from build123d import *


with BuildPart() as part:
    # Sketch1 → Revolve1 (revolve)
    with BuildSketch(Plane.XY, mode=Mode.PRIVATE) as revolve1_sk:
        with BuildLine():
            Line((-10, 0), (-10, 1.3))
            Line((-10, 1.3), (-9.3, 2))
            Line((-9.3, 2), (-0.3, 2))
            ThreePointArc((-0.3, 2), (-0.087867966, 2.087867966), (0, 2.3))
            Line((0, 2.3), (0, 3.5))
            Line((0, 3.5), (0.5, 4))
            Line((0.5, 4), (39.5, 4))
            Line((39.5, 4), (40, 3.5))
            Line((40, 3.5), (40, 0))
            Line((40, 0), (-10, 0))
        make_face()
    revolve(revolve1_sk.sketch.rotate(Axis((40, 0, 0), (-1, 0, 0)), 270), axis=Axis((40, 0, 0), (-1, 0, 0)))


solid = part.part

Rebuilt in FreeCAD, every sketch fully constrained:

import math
import FreeCAD as App
import Part
import Sketcher
from FreeCAD import Vector

doc = App.newDocument("Part")
body = doc.addObject("PartDesign::Body", "Body")

sketch1 = body.newObject("Sketcher::SketchObject", "Sketch")
sketch1.AttachmentSupport = (doc.getObject("XY_Plane"), [""])
sketch1.MapMode = "FlatFace"
sketch1.addGeometry(Part.LineSegment(Vector(-10, 1.3, 0), Vector(-10, 0, 0)), False)
sketch1.addGeometry(Part.LineSegment(Vector(-10, 0, 0), Vector(40, 0, 0)), False)
sketch1.addGeometry(Part.LineSegment(Vector(40, 0, 0), Vector(40, 3.5, 0)), False)
sketch1.addGeometry(Part.LineSegment(Vector(40, 3.5, 0), Vector(39.5, 4, 0)), False)
sketch1.addGeometry(Part.LineSegment(Vector(39.5, 4, 0), Vector(0.5, 4, 0)), False)
sketch1.addGeometry(Part.LineSegment(Vector(0.5, 4, 0), Vector(0, 3.5, 0)), False)
sketch1.addGeometry(Part.LineSegment(Vector(0, 3.5, 0), Vector(0, 2.3, 0)), False)
sketch1.addGeometry(Part.ArcOfCircle(Part.Circle(Vector(-0.3, 2.3, 0), Vector(0, 0, 1), 0.3), math.radians(-90), math.radians(0)), False)
sketch1.addGeometry(Part.LineSegment(Vector(-0.3, 2, 0), Vector(-9.3, 2, 0)), False)
sketch1.addGeometry(Part.LineSegment(Vector(-9.3, 2, 0), Vector(-10, 1.3, 0)), False)
sketch1.addConstraint(Sketcher.Constraint("Coincident", 0, 2, 1, 1))
sketch1.addConstraint(Sketcher.Constraint("Coincident", 1, 2, 2, 1))
sketch1.addConstraint(Sketcher.Constraint("Coincident", 2, 2, 3, 1))
sketch1.addConstraint(Sketcher.Constraint("Coincident", 3, 2, 4, 1))
sketch1.addConstraint(Sketcher.Constraint("Coincident", 4, 2, 5, 1))
sketch1.addConstraint(Sketcher.Constraint("Coincident", 5, 2, 6, 1))
sketch1.addConstraint(Sketcher.Constraint("Tangent", 6, 2, 7, 2))
sketch1.addConstraint(Sketcher.Constraint("Tangent", 7, 1, 8, 1))
sketch1.addConstraint(Sketcher.Constraint("Coincident", 8, 2, 9, 1))
sketch1.addConstraint(Sketcher.Constraint("Coincident", 9, 2, 0, 1))
sketch1.addConstraint(Sketcher.Constraint("Vertical", 0))
sketch1.addConstraint(Sketcher.Constraint("Horizontal", 1))
sketch1.addConstraint(Sketcher.Constraint("Vertical", 2))
sketch1.addConstraint(Sketcher.Constraint("Horizontal", 4))
sketch1.addConstraint(Sketcher.Constraint("Vertical", 6))
sketch1.addConstraint(Sketcher.Constraint("Horizontal", 8))
sketch1.addConstraint(Sketcher.Constraint("PointOnObject", 0, 2, -1))
sketch1.addConstraint(Sketcher.Constraint("PointOnObject", 5, 2, -2))
sketch1.addConstraint(Sketcher.Constraint("Perpendicular", 3, 5))
sketch1.addConstraint(Sketcher.Constraint("Parallel", 5, 9))
sketch1.addConstraint(Sketcher.Constraint("Horizontal", 2, 2, 5, 2))
sketch1.addConstraint(Sketcher.Constraint("Equal", 3, 5))
sketch1.addConstraint(Sketcher.Constraint("Radius", 7, 0.3))
sketch1.addConstraint(Sketcher.Constraint("DistanceX", 1, 1, 1, 2, 50.0))
sketch1.addConstraint(Sketcher.Constraint("DistanceX", 4, 2, 4, 1, 39.0))
sketch1.addConstraint(Sketcher.Constraint("DistanceX", 8, 2, 8, 1, 9.0))
sketch1.addConstraint(Sketcher.Constraint("DistanceY", 0, 2, 0, 1, 1.3))
sketch1.addConstraint(Sketcher.Constraint("DistanceY", 2, 1, 2, 2, 3.5))
sketch1.addConstraint(Sketcher.Constraint("DistanceY", 6, 2, 6, 1, 1.2))
revolution = body.newObject("PartDesign::Revolution", "Revolution")
revolution.Profile = sketch1
revolution.ReferenceAxis = (sketch1, ["H_Axis"])
revolution.Angle = 360

doc.recompute()
